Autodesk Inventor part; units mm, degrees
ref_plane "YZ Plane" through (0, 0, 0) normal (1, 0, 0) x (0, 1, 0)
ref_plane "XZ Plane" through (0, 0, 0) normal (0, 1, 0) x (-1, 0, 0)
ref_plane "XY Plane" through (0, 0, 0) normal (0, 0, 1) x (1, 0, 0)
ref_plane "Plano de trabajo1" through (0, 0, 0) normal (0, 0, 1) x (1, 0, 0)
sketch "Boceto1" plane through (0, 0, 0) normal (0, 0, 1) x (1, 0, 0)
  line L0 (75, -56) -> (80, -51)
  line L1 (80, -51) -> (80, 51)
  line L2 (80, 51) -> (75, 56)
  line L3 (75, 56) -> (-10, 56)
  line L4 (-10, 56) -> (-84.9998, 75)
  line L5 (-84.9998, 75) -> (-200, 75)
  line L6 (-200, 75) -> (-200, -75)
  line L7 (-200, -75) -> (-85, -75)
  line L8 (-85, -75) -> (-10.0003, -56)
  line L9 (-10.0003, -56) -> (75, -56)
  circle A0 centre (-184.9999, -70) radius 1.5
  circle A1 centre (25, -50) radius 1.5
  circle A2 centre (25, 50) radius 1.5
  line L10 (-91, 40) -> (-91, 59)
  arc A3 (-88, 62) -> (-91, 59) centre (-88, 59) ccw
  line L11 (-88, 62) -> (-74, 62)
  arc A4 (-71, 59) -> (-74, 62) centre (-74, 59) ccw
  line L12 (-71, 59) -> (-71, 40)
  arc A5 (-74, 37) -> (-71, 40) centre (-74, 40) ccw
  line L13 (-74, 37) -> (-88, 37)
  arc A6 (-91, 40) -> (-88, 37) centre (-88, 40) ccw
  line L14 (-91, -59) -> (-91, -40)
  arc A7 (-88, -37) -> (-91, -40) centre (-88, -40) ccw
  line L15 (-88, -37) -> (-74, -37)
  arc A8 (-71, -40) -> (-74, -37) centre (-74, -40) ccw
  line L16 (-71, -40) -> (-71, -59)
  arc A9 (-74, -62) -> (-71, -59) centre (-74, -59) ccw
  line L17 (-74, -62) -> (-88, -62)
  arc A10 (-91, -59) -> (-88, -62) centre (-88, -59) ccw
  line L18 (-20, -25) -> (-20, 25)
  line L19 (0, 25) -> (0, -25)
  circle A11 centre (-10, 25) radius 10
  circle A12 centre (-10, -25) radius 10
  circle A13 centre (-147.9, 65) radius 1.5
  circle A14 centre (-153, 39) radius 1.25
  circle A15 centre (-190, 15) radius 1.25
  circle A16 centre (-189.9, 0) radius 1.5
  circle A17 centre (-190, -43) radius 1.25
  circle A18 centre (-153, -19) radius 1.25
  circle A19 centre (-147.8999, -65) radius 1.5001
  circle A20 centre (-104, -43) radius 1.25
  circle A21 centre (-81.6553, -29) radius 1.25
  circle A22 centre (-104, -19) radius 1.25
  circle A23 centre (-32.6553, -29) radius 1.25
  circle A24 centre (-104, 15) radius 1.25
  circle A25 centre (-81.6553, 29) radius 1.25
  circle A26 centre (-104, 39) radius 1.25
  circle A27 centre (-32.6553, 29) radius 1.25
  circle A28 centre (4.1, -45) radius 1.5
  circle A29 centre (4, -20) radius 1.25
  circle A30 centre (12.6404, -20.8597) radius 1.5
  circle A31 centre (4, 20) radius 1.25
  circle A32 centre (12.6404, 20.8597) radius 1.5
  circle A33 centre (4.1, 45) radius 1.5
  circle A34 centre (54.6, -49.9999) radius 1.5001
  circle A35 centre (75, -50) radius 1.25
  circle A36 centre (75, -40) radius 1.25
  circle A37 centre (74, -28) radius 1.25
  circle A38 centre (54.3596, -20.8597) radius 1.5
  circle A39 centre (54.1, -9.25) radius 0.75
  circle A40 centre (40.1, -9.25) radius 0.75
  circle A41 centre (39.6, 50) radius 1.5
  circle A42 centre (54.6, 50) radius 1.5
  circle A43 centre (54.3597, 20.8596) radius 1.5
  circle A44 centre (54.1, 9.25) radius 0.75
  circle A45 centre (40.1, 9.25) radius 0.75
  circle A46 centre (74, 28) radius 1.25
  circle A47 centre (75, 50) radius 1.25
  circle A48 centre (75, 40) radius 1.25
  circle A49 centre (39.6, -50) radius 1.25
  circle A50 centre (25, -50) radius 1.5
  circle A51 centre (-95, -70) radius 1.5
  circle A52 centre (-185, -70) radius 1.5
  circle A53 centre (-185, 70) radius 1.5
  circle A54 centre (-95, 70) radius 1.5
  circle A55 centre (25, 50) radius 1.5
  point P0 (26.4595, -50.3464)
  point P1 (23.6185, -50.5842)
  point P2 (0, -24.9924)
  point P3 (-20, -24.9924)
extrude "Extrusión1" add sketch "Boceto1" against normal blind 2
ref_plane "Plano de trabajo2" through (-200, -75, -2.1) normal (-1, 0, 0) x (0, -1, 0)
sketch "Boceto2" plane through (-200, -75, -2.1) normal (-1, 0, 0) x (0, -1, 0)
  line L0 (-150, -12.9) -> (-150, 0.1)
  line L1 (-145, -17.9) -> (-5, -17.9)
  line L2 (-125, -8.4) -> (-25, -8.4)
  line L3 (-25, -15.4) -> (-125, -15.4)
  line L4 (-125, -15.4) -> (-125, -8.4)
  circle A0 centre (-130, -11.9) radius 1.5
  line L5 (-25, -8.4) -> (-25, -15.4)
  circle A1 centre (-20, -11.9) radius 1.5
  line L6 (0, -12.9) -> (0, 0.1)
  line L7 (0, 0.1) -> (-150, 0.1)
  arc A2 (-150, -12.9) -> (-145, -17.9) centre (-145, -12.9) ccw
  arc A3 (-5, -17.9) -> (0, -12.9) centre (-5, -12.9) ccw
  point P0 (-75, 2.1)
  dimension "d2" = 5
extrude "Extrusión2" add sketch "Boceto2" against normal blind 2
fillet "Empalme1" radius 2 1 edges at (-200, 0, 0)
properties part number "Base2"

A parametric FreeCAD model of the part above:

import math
import FreeCAD as App
import Part
import Sketcher

V = App.Vector
Q = App.Units.Quantity


def edges_at(feature, points):
    """Names of the edges that pass closest to the given points."""
    edges = feature.Shape.Edges
    near = lambda p: min(range(len(edges)), key=lambda i: edges[i].distToShape(Part.Vertex(*p))[0])
    return sorted({f"Edge{near(p) + 1}" for p in points})


def add_polygon(sketch, points):
    """Adds a closed chain of lines whose ends are joined by coincident constraints."""
    first, n = sketch.GeometryCount, len(points)
    for a, b in zip(points, points[1:] + points[:1]):
        sketch.addGeometry(Part.LineSegment(App.Vector(*a, 0), App.Vector(*b, 0)), False)
    for i in range(n):
        sketch.addConstraint(Sketcher.Constraint("Coincident", first + i, 2, first + (i + 1) % n, 1))

doc = App.newDocument("Part")
body = doc.addObject("PartDesign::Body", "Body")

# Sketch on XY plane
sketch1 = doc.addObject("Sketcher::SketchObject", "Sketch")
body.addObject(sketch1)
sketch1.AttachmentSupport = (doc.XY_Plane, [""])
sketch1.MapMode = "FlatFace"
add_polygon(sketch1, [(-10, -56), (75, -56), (80, -51), (80, 51), (75, 56), (-10, 56), (-85, 75), (-200, 75), (-200, -75), (-85, -75)])  # lines 0-9
sketch1.addGeometry(Part.Circle(V(-185, -70, 0), V(0, 0, 1), 1.5), False)  # 10
sketch1.addGeometry(Part.Circle(V(-147.9, -65, 0), V(0, 0, 1), 1.5), False)  # 11
sketch1.addGeometry(Part.Circle(V(-190, -43, 0), V(0, 0, 1), 1.2), False)  # 12
sketch1.addGeometry(Part.Circle(V(-95, -70, 0), V(0, 0, 1), 1.5), False)  # 13
sketch1.addGeometry(Part.Circle(V(-104, -43, 0), V(0, 0, 1), 1.2), False)  # 14
sketch1.addGeometry(Part.ArcOfCircle(Part.Circle(V(-88, -59, 0), V(0, 0, 1), 3), math.radians(180), math.radians(270)), False)  # 15
sketch1.addGeometry(Part.LineSegment(V(-91, -59, 0), V(-91, -40, 0)), False)  # 16
sketch1.addGeometry(Part.ArcOfCircle(Part.Circle(V(-88, -40, 0), V(0, 0, 1), 3), math.radians(90), math.radians(180)), False)  # 17
sketch1.addGeometry(Part.LineSegment(V(-88, -37, 0), V(-74, -37, 0)), False)  # 18
sketch1.addGeometry(Part.ArcOfCircle(Part.Circle(V(-74, -40, 0), V(0, 0, 1), 3), math.radians(0), math.radians(90)), False)  # 19
sketch1.addGeometry(Part.LineSegment(V(-71, -40, 0), V(-71, -59, 0)), False)  # 20
sketch1.addGeometry(Part.ArcOfCircle(Part.Circle(V(-74, -59, 0), V(0, 0, 1), 3), math.radians(-90), math.radians(0)), False)  # 21
sketch1.addGeometry(Part.LineSegment(V(-74, -62, 0), V(-88, -62, 0)), False)  # 22
sketch1.addGeometry(Part.Circle(V(-153, -19, 0), V(0, 0, 1), 1.2), False)  # 23
sketch1.addGeometry(Part.Circle(V(-104, -19, 0), V(0, 0, 1), 1.2), False)  # 24
sketch1.addGeometry(Part.Circle(V(-81.7, -29, 0), V(0, 0, 1), 1.2), False)  # 25
sketch1.addGeometry(Part.Circle(V(4.1, -45, 0), V(0, 0, 1), 1.5), False)  # 26
sketch1.addGeometry(Part.Circle(V(25, -50, 0), V(0, 0, 1), 1.5), False)  # 27
sketch1.addGeometry(Part.Circle(V(39.6, -50, 0), V(0, 0, 1), 1.2), False)  # 28
sketch1.addGeometry(Part.Circle(V(54.6, -50, 0), V(0, 0, 1), 1.5), False)  # 29
sketch1.addGeometry(Part.Circle(V(75, -50, 0), V(0, 0, 1), 1.2), False)  # 30
sketch1.addGeometry(Part.Circle(V(75, -40, 0), V(0, 0, 1), 1.2), False)  # 31
sketch1.addGeometry(Part.Circle(V(-32.7, -29, 0), V(0, 0, 1), 1.2), False)  # 32
sketch1.addGeometry(Part.Circle(V(4, -20, 0), V(0, 0, 1), 1.2), False)  # 33
sketch1.addGeometry(Part.Circle(V(12.6, -20.9, 0), V(0, 0, 1), 1.5), False)  # 34
sketch1.addGeometry(Part.Circle(V(54.4, -20.9, 0), V(0, 0, 1), 1.5), False)  # 35
sketch1.addGeometry(Part.Circle(V(74, -28, 0), V(0, 0, 1), 1.2), False)  # 36
sketch1.addGeometry(Part.Circle(V(40.1, -9.2, 0), V(0, 0, 1), 0.8), False)  # 37
sketch1.addGeometry(Part.Circle(V(54.1, -9.2, 0), V(0, 0, 1), 0.8), False)  # 38
sketch1.addGeometry(Part.Circle(V(-189.9, 0, 0), V(0, 0, 1), 1.5), False)  # 39
sketch1.addGeometry(Part.Circle(V(-190, 15, 0), V(0, 0, 1), 1.2), False)  # 40
sketch1.addGeometry(Part.Circle(V(-104, 15, 0), V(0, 0, 1), 1.2), False)  # 41
sketch1.addGeometry(Part.Circle(V(-81.7, 29, 0), V(0, 0, 1), 1.2), False)  # 42
sketch1.addGeometry(Part.Circle(V(-153, 39, 0), V(0, 0, 1), 1.2), False)  # 43
sketch1.addGeometry(Part.Circle(V(-185, 70, 0), V(0, 0, 1), 1.5), False)  # 44
sketch1.addGeometry(Part.Circle(V(-147.9, 65, 0), V(0, 0, 1), 1.5), False)  # 45
sketch1.addGeometry(Part.Circle(V(-104, 39, 0), V(0, 0, 1), 1.2), False)  # 46
sketch1.addGeometry(Part.ArcOfCircle(Part.Circle(V(-88, 40, 0), V(0, 0, 1), 3), math.radians(180), math.radians(270)), False)  # 47
sketch1.addGeometry(Part.LineSegment(V(-91, 40, 0), V(-91, 59, 0)), False)  # 48
sketch1.addGeometry(Part.ArcOfCircle(Part.Circle(V(-88, 59, 0), V(0, 0, 1), 3), math.radians(90), math.radians(180)), False)  # 49
sketch1.addGeometry(Part.LineSegment(V(-88, 62, 0), V(-74, 62, 0)), False)  # 50
sketch1.addGeometry(Part.ArcOfCircle(Part.Circle(V(-74, 59, 0), V(0, 0, 1), 3), math.radians(0), math.radians(90)), False)  # 51
sketch1.addGeometry(Part.LineSegment(V(-71, 59, 0), V(-71, 40, 0)), False)  # 52
sketch1.addGeometry(Part.ArcOfCircle(Part.Circle(V(-74, 40, 0), V(0, 0, 1), 3), math.radians(-90), math.radians(0)), False)  # 53
sketch1.addGeometry(Part.LineSegment(V(-74, 37, 0), V(-88, 37, 0)), False)  # 54
sketch1.addGeometry(Part.Circle(V(-95, 70, 0), V(0, 0, 1), 1.5), False)  # 55
sketch1.addGeometry(Part.ArcOfCircle(Part.Circle(V(-10, -25, 0), V(0, 0, 1), 10), math.radians(180), math.radians(360)), False)  # 56
sketch1.addGeometry(Part.LineSegment(V(-20, -25, 0), V(-20, 25, 0)), False)  # 57
sketch1.addGeometry(Part.ArcOfCircle(Part.Circle(V(-10, 25, 0), V(0, 0, 1), 10), math.radians(0), math.radians(180)), False)  # 58
sketch1.addGeometry(Part.LineSegment(V(0, 25, 0), V(0, -25, 0)), False)  # 59
sketch1.addGeometry(Part.Circle(V(-32.7, 29, 0), V(0, 0, 1), 1.2), False)  # 60
sketch1.addGeometry(Part.Circle(V(4, 20, 0), V(0, 0, 1), 1.2), False)  # 61
sketch1.addGeometry(Part.Circle(V(40.1, 9.2, 0), V(0, 0, 1), 0.8), False)  # 62
sketch1.addGeometry(Part.Circle(V(54.1, 9.2, 0), V(0, 0, 1), 0.8), False)  # 63
sketch1.addGeometry(Part.Circle(V(12.6, 20.9, 0), V(0, 0, 1), 1.5), False)  # 64
sketch1.addGeometry(Part.Circle(V(54.4, 20.9, 0), V(0, 0, 1), 1.5), False)  # 65
sketch1.addGeometry(Part.Circle(V(74, 28, 0), V(0, 0, 1), 1.2), False)  # 66
sketch1.addGeometry(Part.Circle(V(4.1, 45, 0), V(0, 0, 1), 1.5), False)  # 67
sketch1.addGeometry(Part.Circle(V(25, 50, 0), V(0, 0, 1), 1.5), False)  # 68
sketch1.addGeometry(Part.Circle(V(39.6, 50, 0), V(0, 0, 1), 1.5), False)  # 69
sketch1.addGeometry(Part.Circle(V(75, 40, 0), V(0, 0, 1), 1.2), False)  # 70
sketch1.addGeometry(Part.Circle(V(54.6, 50, 0), V(0, 0, 1), 1.5), False)  # 71
sketch1.addGeometry(Part.Circle(V(75, 50, 0), V(0, 0, 1), 1.2), False)  # 72
sketch1.addConstraint(Sketcher.Constraint("Tangent", 15, 1, 16, 1))
sketch1.addConstraint(Sketcher.Constraint("Tangent", 16, 2, 17, 2))
sketch1.addConstraint(Sketcher.Constraint("Tangent", 17, 1, 18, 1))
sketch1.addConstraint(Sketcher.Constraint("Tangent", 18, 2, 19, 2))
sketch1.addConstraint(Sketcher.Constraint("Tangent", 19, 1, 20, 1))
sketch1.addConstraint(Sketcher.Constraint("Tangent", 20, 2, 21, 2))
sketch1.addConstraint(Sketcher.Constraint("Tangent", 21, 1, 22, 1))
sketch1.addConstraint(Sketcher.Constraint("Tangent", 22, 2, 15, 2))
sketch1.addConstraint(Sketcher.Constraint("Tangent", 47, 1, 48, 1))
sketch1.addConstraint(Sketcher.Constraint("Tangent", 48, 2, 49, 2))
sketch1.addConstraint(Sketcher.Constraint("Tangent", 49, 1, 50, 1))
sketch1.addConstraint(Sketcher.Constraint("Tangent", 50, 2, 51, 2))
sketch1.addConstraint(Sketcher.Constraint("Tangent", 51, 1, 52, 1))
sketch1.addConstraint(Sketcher.Constraint("Tangent", 52, 2, 53, 2))
sketch1.addConstraint(Sketcher.Constraint("Tangent", 53, 1, 54, 1))
sketch1.addConstraint(Sketcher.Constraint("Tangent", 54, 2, 47, 2))
sketch1.addConstraint(Sketcher.Constraint("Tangent", 56, 1, 57, 1))
sketch1.addConstraint(Sketcher.Constraint("Tangent", 57, 2, 58, 2))
sketch1.addConstraint(Sketcher.Constraint("Tangent", 58, 1, 59, 1))
sketch1.addConstraint(Sketcher.Constraint("Tangent", 59, 2, 56, 2))
sketch1.addConstraint(Sketcher.Constraint("Horizontal", 0))
sketch1.addConstraint(Sketcher.Constraint("Vertical", 2))
sketch1.addConstraint(Sketcher.Constraint("Horizontal", 4))
sketch1.addConstraint(Sketcher.Constraint("Horizontal", 6))
sketch1.addConstraint(Sketcher.Constraint("Vertical", 7))
sketch1.addConstraint(Sketcher.Constraint("Horizontal", 8))
sketch1.addConstraint(Sketcher.Constraint("Vertical", 16))
sketch1.addConstraint(Sketcher.Constraint("Horizontal", 18))
sketch1.addConstraint(Sketcher.Constraint("Vertical", 20))
sketch1.addConstraint(Sketcher.Constraint("Horizontal", 22))
sketch1.addConstraint(Sketcher.Constraint("Vertical", 48))
sketch1.addConstraint(Sketcher.Constraint("Horizontal", 50))
sketch1.addConstraint(Sketcher.Constraint("Vertical", 52))
sketch1.addConstraint(Sketcher.Constraint("Horizontal", 54))
sketch1.addConstraint(Sketcher.Constraint("Vertical", 57))
sketch1.addConstraint(Sketcher.Constraint("Vertical", 59))
sketch1.addConstraint(Sketcher.Constraint("Equal", 10, 11))
sketch1.addConstraint(Sketcher.Constraint("Equal", 11, 13))
sketch1.addConstraint(Sketcher.Constraint("Equal", 12, 14))
sketch1.addConstraint(Sketcher.Constraint("Equal", 15, 17))
sketch1.addConstraint(Sketcher.Constraint("Equal", 17, 19))
sketch1.addConstraint(Sketcher.Constraint("Equal", 19, 21))
sketch1.addConstraint(Sketcher.Constraint("Equal", 14, 23))
sketch1.addConstraint(Sketcher.Constraint("Equal", 23, 24))
sketch1.addConstraint(Sketcher.Constraint("Equal", 24, 25))
sketch1.addConstraint(Sketcher.Constraint("Equal", 13, 26))
sketch1.addConstraint(Sketcher.Constraint("Equal", 26, 27))
sketch1.addConstraint(Sketcher.Constraint("Equal", 25, 28))
sketch1.addConstraint(Sketcher.Constraint("Equal", 27, 29))
sketch1.addConstraint(Sketcher.Constraint("Equal", 28, 30))
sketch1.addConstraint(Sketcher.Constraint("Equal", 30, 31))
sketch1.addConstraint(Sketcher.Constraint("Equal", 31, 32))
sketch1.addConstraint(Sketcher.Constraint("Equal", 32, 33))
sketch1.addConstraint(Sketcher.Constraint("Equal", 29, 34))
sketch1.addConstraint(Sketcher.Constraint("Equal", 34, 35))
sketch1.addConstraint(Sketcher.Constraint("Equal", 33, 36))
sketch1.addConstraint(Sketcher.Constraint("Equal", 37, 38))
sketch1.addConstraint(Sketcher.Constraint("Equal", 35, 39))
sketch1.addConstraint(Sketcher.Constraint("Equal", 36, 40))
sketch1.addConstraint(Sketcher.Constraint("Equal", 40, 41))
sketch1.addConstraint(Sketcher.Constraint("Equal", 41, 42))
sketch1.addConstraint(Sketcher.Constraint("Equal", 42, 43))
sketch1.addConstraint(Sketcher.Constraint("Equal", 39, 44))
sketch1.addConstraint(Sketcher.Constraint("Equal", 44, 45))
sketch1.addConstraint(Sketcher.Constraint("Equal", 43, 46))
sketch1.addConstraint(Sketcher.Constraint("Equal", 21, 47))
sketch1.addConstraint(Sketcher.Constraint("Equal", 47, 49))
sketch1.addConstraint(Sketcher.Constraint("Equal", 49, 51))
sketch1.addConstraint(Sketcher.Constraint("Equal", 51, 53))
sketch1.addConstraint(Sketcher.Constraint("Equal", 45, 55))
sketch1.addConstraint(Sketcher.Constraint("Equal", 46, 60))
sketch1.addConstraint(Sketcher.Constraint("Equal", 60, 61))
sketch1.addConstraint(Sketcher.Constraint("Equal", 38, 62))
sketch1.addConstraint(Sketcher.Constraint("Equal", 62, 63))
sketch1.addConstraint(Sketcher.Constraint("Equal", 55, 64))
sketch1.addConstraint(Sketcher.Constraint("Equal", 64, 65))
sketch1.addConstraint(Sketcher.Constraint("Equal", 61, 66))
sketch1.addConstraint(Sketcher.Constraint("Equal", 65, 67))
sketch1.addConstraint(Sketcher.Constraint("Equal", 67, 68))
sketch1.addConstraint(Sketcher.Constraint("Equal", 68, 69))
sketch1.addConstraint(Sketcher.Constraint("Equal", 66, 70))
sketch1.addConstraint(Sketcher.Constraint("Equal", 69, 71))
sketch1.addConstraint(Sketcher.Constraint("Equal", 70, 72))
sketch1.addConstraint(Sketcher.Constraint("Symmetric", 58, 1, 59, 2, -1, 1))
sketch1.addConstraint(Sketcher.Constraint("Symmetric", 25, 3, 42, 3, -1))
sketch1.addConstraint(Sketcher.Constraint("Symmetric", 10, 3, 44, 3, -1))
sketch1.addConstraint(Sketcher.Constraint("Symmetric", 11, 3, 45, 3, -1))
sketch1.addConstraint(Sketcher.Constraint("Symmetric", 17, 3, 47, 3, -1))
sketch1.addConstraint(Sketcher.Constraint("Symmetric", 21, 3, 51, 3, -1))
sketch1.addConstraint(Sketcher.Constraint("Symmetric", 13, 3, 55, 3, -1))
sketch1.addConstraint(Sketcher.Constraint("Symmetric", 32, 3, 60, 3, -1))
sketch1.addConstraint(Sketcher.Constraint("Symmetric", 33, 3, 61, 3, -1))
sketch1.addConstraint(Sketcher.Constraint("Symmetric", 37, 3, 62, 3, -1))
sketch1.addConstraint(Sketcher.Constraint("Symmetric", 38, 3, 63, 3, -1))
sketch1.addConstraint(Sketcher.Constraint("Symmetric", 34, 3, 64, 3, -1))
sketch1.addConstraint(Sketcher.Constraint("Symmetric", 35, 3, 65, 3, -1))
sketch1.addConstraint(Sketcher.Constraint("Symmetric", 36, 3, 66, 3, -1))
sketch1.addConstraint(Sketcher.Constraint("Symmetric", 26, 3, 67, 3, -1))
sketch1.addConstraint(Sketcher.Constraint("Symmetric", 27, 3, 68, 3, -1))
sketch1.addConstraint(Sketcher.Constraint("Symmetric", 28, 3, 69, 3, -1))
sketch1.addConstraint(Sketcher.Constraint("Symmetric", 31, 3, 70, 3, -1))
sketch1.addConstraint(Sketcher.Constraint("Symmetric", 29, 3, 71, 3, -1))
sketch1.addConstraint(Sketcher.Constraint("Symmetric", 30, 3, 72, 3, -1))
sketch1.addConstraint(Sketcher.Constraint("Symmetric", 0, 2, 3, 2, -1))
sketch1.addConstraint(Sketcher.Constraint("Symmetric", 5, 2, 8, 2, -1))
sketch1.addConstraint(Sketcher.Constraint("PointOnObject", 39, 3, -1))
sketch1.addConstraint(Sketcher.Constraint("Perpendicular", 1, 3))
sketch1.addConstraint(Sketcher.Constraint("Horizontal", 10, 3, 13, 3))
sketch1.addConstraint(Sketcher.Constraint("Horizontal", 12, 3, 14, 3))
sketch1.addConstraint(Sketcher.Constraint("Horizontal", 23, 3, 24, 3))
sketch1.addConstraint(Sketcher.Constraint("Horizontal", 27, 3, 28, 3))
sketch1.addConstraint(Sketcher.Constraint("Horizontal", 28, 3, 29, 3))
sketch1.addConstraint(Sketcher.Constraint("Horizontal", 29, 3, 30, 3))
sketch1.addConstraint(Sketcher.Constraint("Horizontal", 19, 3, 31, 3))
sketch1.addConstraint(Sketcher.Constraint("Horizontal", 25, 3, 32, 3))
sketch1.addConstraint(Sketcher.Constraint("Horizontal", 34, 3, 35, 3))
sketch1.addConstraint(Sketcher.Constraint("Horizontal", 37, 3, 38, 3))
sketch1.addConstraint(Sketcher.Constraint("Horizontal", 40, 3, 41, 3))
sketch1.addConstraint(Sketcher.Constraint("Horizontal", 43, 3, 46, 3))
sketch1.addConstraint(Sketcher.Constraint("Vertical", 14, 3, 24, 3))
sketch1.addConstraint(Sketcher.Constraint("Vertical", 30, 3, 31, 3))
sketch1.addConstraint(Sketcher.Constraint("Vertical", 12, 3, 40, 3))
sketch1.addConstraint(Sketcher.Constraint("Vertical", 24, 3, 41, 3))
sketch1.addConstraint(Sketcher.Constraint("Vertical", 23, 3, 43, 3))
sketch1.addConstraint(Sketcher.Constraint("Vertical", 41, 3, 46, 3))
sketch1.addConstraint(Sketcher.Constraint("Vertical", 72, 3, 0, 2))
sketch1.addConstraint(Sketcher.Constraint("Vertical", 58, 3, 4, 2))
sketch1.addConstraint(Sketcher.Constraint("Equal", 1, 3))
sketch1.addConstraint(Sketcher.Constraint("Equal", 5, 9))
sketch1.addConstraint(Sketcher.Constraint("Diameter", 10, Q("3 mm")))
sketch1.addConstraint(Sketcher.Constraint("Radius", 15, Q("3 mm")))
sketch1.addConstraint(Sketcher.Constraint("Radius", 56, Q("10 mm")))
sketch1.addConstraint(Sketcher.Constraint("Diameter", 12, Q("2.5 mm")))
sketch1.addConstraint(Sketcher.Constraint("Diameter", 37, Q("1.5 mm")))
sketch1.addConstraint(Sketcher.Constraint("DistanceX", 4, 2, 4, 1, Q("85 mm")))
sketch1.addConstraint(Sketcher.Constraint("DistanceX", 8, 1, 8, 2, Q("115 mm")))
sketch1.addConstraint(Sketcher.Constraint("DistanceX", 18, 1, 18, 2, Q("14 mm")))
sketch1.addConstraint(Sketcher.Constraint("DistanceY", 2, 1, 2, 2, Q("102 mm")))
sketch1.addConstraint(Sketcher.Constraint("DistanceY", 7, 2, 7, 1, Q("150 mm")))
sketch1.addConstraint(Sketcher.Constraint("DistanceY", 16, 1, 16, 2, Q("19 mm")))
sketch1.addConstraint(Sketcher.Constraint("DistanceY", 57, 1, 57, 2, Q("50 mm")))
sketch1.addConstraint(Sketcher.Constraint("DistanceX", 10, 3, -1, 1, Q("185 mm")))
sketch1.addConstraint(Sketcher.Constraint("DistanceY", 10, 3, -1, 1, Q("70 mm")))
sketch1.addConstraint(Sketcher.Constraint("DistanceY", 11, 3, -1, 1, Q("65 mm")))
sketch1.addConstraint(Sketcher.Constraint("DistanceX", 12, 3, -1, 1, Q("190 mm")))
sketch1.addConstraint(Sketcher.Constraint("DistanceY", 12, 3, -1, 1, Q("43 mm")))
sketch1.addConstraint(Sketcher.Constraint("DistanceX", 13, 3, -1, 1, Q("95 mm")))
sketch1.addConstraint(Sketcher.Constraint("DistanceX", 14, 3, -1, 1, Q("104 mm")))
sketch1.addConstraint(Sketcher.Constraint("DistanceX", 15, 3, -1, 1, Q("88 mm")))
sketch1.addConstraint(Sketcher.Constraint("DistanceY", 15, 3, -1, 1, Q("59 mm")))
sketch1.addConstraint(Sketcher.Constraint("DistanceX", 23, 3, -1, 1, Q("153 mm")))
sketch1.addConstraint(Sketcher.Constraint("DistanceY", 23, 3, -1, 1, Q("19 mm")))
sketch1.addConstraint(Sketcher.Constraint("DistanceY", 25, 3, -1, 1, Q("29 mm")))
sketch1.addConstraint(Sketcher.Constraint("DistanceY", 26, 3, -1, 1, Q("45 mm")))
sketch1.addConstraint(Sketcher.Constraint("DistanceX", -1, 1, 27, 3, Q("25 mm")))
sketch1.addConstraint(Sketcher.Constraint("DistanceY", 27, 3, -1, 1, Q("50 mm")))
sketch1.addConstraint(Sketcher.Constraint("DistanceX", -1, 1, 33, 3, Q("4 mm")))
sketch1.addConstraint(Sketcher.Constraint("DistanceY", 33, 3, -1, 1, Q("20 mm")))
sketch1.addConstraint(Sketcher.Constraint("DistanceX", -1, 1, 36, 3, Q("74 mm")))
sketch1.addConstraint(Sketcher.Constraint("DistanceY", 36, 3, -1, 1, Q("28 mm")))
sketch1.addConstraint(Sketcher.Constraint("DistanceY", -1, 1, 40, 3, Q("15 mm")))
sketch1.addConstraint(Sketcher.Constraint("DistanceY", -1, 1, 43, 3, Q("39 mm")))
sketch1.addConstraint(Sketcher.Constraint("DistanceY", 0, 2, -1, 1, Q("56 mm")))
sketch1.addConstraint(Sketcher.Constraint("DistanceX", 6, 2, -1, 1, Q("200 mm")))
sketch1.addConstraint(Sketcher.Constraint("DistanceX", 11, 3, -1, 1, Q("147.9 mm")))
sketch1.addConstraint(Sketcher.Constraint("DistanceX", -1, 1, 26, 3, Q("4.1 mm")))
sketch1.addConstraint(Sketcher.Constraint("DistanceX", -1, 1, 28, 3, Q("39.6 mm")))
sketch1.addConstraint(Sketcher.Constraint("DistanceX", -1, 1, 29, 3, Q("54.6 mm")))
sketch1.addConstraint(Sketcher.Constraint("DistanceX", -1, 1, 37, 3, Q("40.1 mm")))
sketch1.addConstraint(Sketcher.Constraint("DistanceX", -1, 1, 38, 3, Q("54.1 mm")))
sketch1.addConstraint(Sketcher.Constraint("DistanceX", 39, 3, -1, 1, Q("189.9 mm")))
sketch1.addConstraint(Sketcher.Constraint("DistanceY", 37, 3, -1, 1, Q("9.25 mm")))
sketch1.addConstraint(Sketcher.Constraint("DistanceX", 25, 3, -1, 1, Q("81.6553 mm")))
sketch1.addConstraint(Sketcher.Constraint("DistanceX", 32, 3, -1, 1, Q("32.6553 mm")))
sketch1.addConstraint(Sketcher.Constraint("DistanceX", -1, 1, 34, 3, Q("12.6404 mm")))
sketch1.addConstraint(Sketcher.Constraint("DistanceY", 34, 3, -1, 1, Q("20.8597 mm")))
sketch1.addConstraint(Sketcher.Constraint("DistanceX", -1, 1, 35, 3, Q("54.3596 mm")))
pad1 = doc.addObject("PartDesign::Pad", "Pad")
body.addObject(pad1)
pad1.Profile = sketch1
pad1.Length = 2
pad1.Reversed = True

# Sketch on YZ plane
sketch2 = doc.addObject("Sketcher::SketchObject", "Sketch001")
body.addObject(sketch2)
sketch2.AttachmentSupport = (doc.YZ_Plane, [""])
sketch2.MapMode = "FlatFace"
sketch2.AttachmentOffset = App.Placement(V(0, 0, -200), App.Rotation())
sketch2.addGeometry(Part.LineSegment(V(75, -2, 0), V(75, -15, 0)), False)  # 0
sketch2.addGeometry(Part.ArcOfCircle(Part.Circle(V(70, -15, 0), V(0, 0, 1), 5), math.radians(-90), math.radians(0)), False)  # 1
sketch2.addGeometry(Part.LineSegment(V(70, -20, 0), V(-70, -20, 0)), False)  # 2
sketch2.addGeometry(Part.ArcOfCircle(Part.Circle(V(-70, -15, 0), V(0, 0, 1), 5), math.radians(180), math.radians(270)), False)  # 3
sketch2.addGeometry(Part.LineSegment(V(-75, -15, 0), V(-75, -2, 0)), False)  # 4
sketch2.addGeometry(Part.LineSegment(V(-75, -2, 0), V(75, -2, 0)), False)  # 5
sketch2.addGeometry(Part.Circle(V(55, -14, 0), V(0, 0, 1), 1.5), False)  # 6
add_polygon(sketch2, [(50, -17.5), (50, -10.5), (-50, -10.5), (-50, -17.5)])  # lines 7-10
sketch2.addGeometry(Part.Circle(V(-55, -14, 0), V(0, 0, 1), 1.5), False)  # 11
sketch2.addConstraint(Sketcher.Constraint("Tangent", 0, 2, 1, 2))
sketch2.addConstraint(Sketcher.Constraint("Tangent", 1, 1, 2, 1))
sketch2.addConstraint(Sketcher.Constraint("Tangent", 2, 2, 3, 2))
sketch2.addConstraint(Sketcher.Constraint("Tangent", 3, 1, 4, 1))
sketch2.addConstraint(Sketcher.Constraint("Coincident", 4, 2, 5, 1))
sketch2.addConstraint(Sketcher.Constraint("Coincident", 5, 2, 0, 1))
sketch2.addConstraint(Sketcher.Constraint("Vertical", 0))
sketch2.addConstraint(Sketcher.Constraint("Horizontal", 2))
sketch2.addConstraint(Sketcher.Constraint("Vertical", 4))
sketch2.addConstraint(Sketcher.Constraint("Horizontal", 5))
sketch2.addConstraint(Sketcher.Constraint("Vertical", 7))
sketch2.addConstraint(Sketcher.Constraint("Horizontal", 8))
sketch2.addConstraint(Sketcher.Constraint("Vertical", 9))
sketch2.addConstraint(Sketcher.Constraint("Horizontal", 10))
sketch2.addConstraint(Sketcher.Constraint("Equal", 1, 3))
sketch2.addConstraint(Sketcher.Constraint("Equal", 6, 11))
sketch2.addConstraint(Sketcher.Constraint("Symmetric", 6, 3, 11, 3, -2))
sketch2.addConstraint(Sketcher.Constraint("Radius", 1, Q("5 mm")))
sketch2.addConstraint(Sketcher.Constraint("Diameter", 6, Q("3 mm")))
sketch2.addConstraint(Sketcher.Constraint("DistanceX", 7, 2, 6, 3, Q("5 mm")))
sketch2.addConstraint(Sketcher.Constraint("DistanceX", 11, 3, 8, 2, Q("5 mm")))
sketch2.addConstraint(Sketcher.Constraint("DistanceX", 2, 2, 2, 1, Q("140 mm")))
sketch2.addConstraint(Sketcher.Constraint("DistanceX", 8, 2, 8, 1, Q("100 mm")))
sketch2.addConstraint(Sketcher.Constraint("DistanceY", 0, 2, 0, 1, Q("13 mm")))
sketch2.addConstraint(Sketcher.Constraint("DistanceY", 7, 1, 7, 2, Q("7 mm")))
sketch2.addConstraint(Sketcher.Constraint("DistanceX", -1, 1, 1, 3, Q("70 mm")))
sketch2.addConstraint(Sketcher.Constraint("DistanceY", 1, 3, -1, 1, Q("15 mm")))
sketch2.addConstraint(Sketcher.Constraint("DistanceY", 6, 3, -1, 1, Q("14 mm")))
sketch2.addConstraint(Sketcher.Constraint("DistanceY", 7, 2, -1, 1, Q("10.5 mm")))
pad2 = doc.addObject("PartDesign::Pad", "Pad001")
body.addObject(pad2)
pad2.Profile = sketch2
pad2.Length = 2
doc.recompute()

fillet = doc.addObject("PartDesign::Fillet", "Fillet")
body.addObject(fillet)
fillet.Base = (pad2, edges_at(pad2, [(-200, 0, 0)]))
fillet.Radius = 2

doc.recompute()
